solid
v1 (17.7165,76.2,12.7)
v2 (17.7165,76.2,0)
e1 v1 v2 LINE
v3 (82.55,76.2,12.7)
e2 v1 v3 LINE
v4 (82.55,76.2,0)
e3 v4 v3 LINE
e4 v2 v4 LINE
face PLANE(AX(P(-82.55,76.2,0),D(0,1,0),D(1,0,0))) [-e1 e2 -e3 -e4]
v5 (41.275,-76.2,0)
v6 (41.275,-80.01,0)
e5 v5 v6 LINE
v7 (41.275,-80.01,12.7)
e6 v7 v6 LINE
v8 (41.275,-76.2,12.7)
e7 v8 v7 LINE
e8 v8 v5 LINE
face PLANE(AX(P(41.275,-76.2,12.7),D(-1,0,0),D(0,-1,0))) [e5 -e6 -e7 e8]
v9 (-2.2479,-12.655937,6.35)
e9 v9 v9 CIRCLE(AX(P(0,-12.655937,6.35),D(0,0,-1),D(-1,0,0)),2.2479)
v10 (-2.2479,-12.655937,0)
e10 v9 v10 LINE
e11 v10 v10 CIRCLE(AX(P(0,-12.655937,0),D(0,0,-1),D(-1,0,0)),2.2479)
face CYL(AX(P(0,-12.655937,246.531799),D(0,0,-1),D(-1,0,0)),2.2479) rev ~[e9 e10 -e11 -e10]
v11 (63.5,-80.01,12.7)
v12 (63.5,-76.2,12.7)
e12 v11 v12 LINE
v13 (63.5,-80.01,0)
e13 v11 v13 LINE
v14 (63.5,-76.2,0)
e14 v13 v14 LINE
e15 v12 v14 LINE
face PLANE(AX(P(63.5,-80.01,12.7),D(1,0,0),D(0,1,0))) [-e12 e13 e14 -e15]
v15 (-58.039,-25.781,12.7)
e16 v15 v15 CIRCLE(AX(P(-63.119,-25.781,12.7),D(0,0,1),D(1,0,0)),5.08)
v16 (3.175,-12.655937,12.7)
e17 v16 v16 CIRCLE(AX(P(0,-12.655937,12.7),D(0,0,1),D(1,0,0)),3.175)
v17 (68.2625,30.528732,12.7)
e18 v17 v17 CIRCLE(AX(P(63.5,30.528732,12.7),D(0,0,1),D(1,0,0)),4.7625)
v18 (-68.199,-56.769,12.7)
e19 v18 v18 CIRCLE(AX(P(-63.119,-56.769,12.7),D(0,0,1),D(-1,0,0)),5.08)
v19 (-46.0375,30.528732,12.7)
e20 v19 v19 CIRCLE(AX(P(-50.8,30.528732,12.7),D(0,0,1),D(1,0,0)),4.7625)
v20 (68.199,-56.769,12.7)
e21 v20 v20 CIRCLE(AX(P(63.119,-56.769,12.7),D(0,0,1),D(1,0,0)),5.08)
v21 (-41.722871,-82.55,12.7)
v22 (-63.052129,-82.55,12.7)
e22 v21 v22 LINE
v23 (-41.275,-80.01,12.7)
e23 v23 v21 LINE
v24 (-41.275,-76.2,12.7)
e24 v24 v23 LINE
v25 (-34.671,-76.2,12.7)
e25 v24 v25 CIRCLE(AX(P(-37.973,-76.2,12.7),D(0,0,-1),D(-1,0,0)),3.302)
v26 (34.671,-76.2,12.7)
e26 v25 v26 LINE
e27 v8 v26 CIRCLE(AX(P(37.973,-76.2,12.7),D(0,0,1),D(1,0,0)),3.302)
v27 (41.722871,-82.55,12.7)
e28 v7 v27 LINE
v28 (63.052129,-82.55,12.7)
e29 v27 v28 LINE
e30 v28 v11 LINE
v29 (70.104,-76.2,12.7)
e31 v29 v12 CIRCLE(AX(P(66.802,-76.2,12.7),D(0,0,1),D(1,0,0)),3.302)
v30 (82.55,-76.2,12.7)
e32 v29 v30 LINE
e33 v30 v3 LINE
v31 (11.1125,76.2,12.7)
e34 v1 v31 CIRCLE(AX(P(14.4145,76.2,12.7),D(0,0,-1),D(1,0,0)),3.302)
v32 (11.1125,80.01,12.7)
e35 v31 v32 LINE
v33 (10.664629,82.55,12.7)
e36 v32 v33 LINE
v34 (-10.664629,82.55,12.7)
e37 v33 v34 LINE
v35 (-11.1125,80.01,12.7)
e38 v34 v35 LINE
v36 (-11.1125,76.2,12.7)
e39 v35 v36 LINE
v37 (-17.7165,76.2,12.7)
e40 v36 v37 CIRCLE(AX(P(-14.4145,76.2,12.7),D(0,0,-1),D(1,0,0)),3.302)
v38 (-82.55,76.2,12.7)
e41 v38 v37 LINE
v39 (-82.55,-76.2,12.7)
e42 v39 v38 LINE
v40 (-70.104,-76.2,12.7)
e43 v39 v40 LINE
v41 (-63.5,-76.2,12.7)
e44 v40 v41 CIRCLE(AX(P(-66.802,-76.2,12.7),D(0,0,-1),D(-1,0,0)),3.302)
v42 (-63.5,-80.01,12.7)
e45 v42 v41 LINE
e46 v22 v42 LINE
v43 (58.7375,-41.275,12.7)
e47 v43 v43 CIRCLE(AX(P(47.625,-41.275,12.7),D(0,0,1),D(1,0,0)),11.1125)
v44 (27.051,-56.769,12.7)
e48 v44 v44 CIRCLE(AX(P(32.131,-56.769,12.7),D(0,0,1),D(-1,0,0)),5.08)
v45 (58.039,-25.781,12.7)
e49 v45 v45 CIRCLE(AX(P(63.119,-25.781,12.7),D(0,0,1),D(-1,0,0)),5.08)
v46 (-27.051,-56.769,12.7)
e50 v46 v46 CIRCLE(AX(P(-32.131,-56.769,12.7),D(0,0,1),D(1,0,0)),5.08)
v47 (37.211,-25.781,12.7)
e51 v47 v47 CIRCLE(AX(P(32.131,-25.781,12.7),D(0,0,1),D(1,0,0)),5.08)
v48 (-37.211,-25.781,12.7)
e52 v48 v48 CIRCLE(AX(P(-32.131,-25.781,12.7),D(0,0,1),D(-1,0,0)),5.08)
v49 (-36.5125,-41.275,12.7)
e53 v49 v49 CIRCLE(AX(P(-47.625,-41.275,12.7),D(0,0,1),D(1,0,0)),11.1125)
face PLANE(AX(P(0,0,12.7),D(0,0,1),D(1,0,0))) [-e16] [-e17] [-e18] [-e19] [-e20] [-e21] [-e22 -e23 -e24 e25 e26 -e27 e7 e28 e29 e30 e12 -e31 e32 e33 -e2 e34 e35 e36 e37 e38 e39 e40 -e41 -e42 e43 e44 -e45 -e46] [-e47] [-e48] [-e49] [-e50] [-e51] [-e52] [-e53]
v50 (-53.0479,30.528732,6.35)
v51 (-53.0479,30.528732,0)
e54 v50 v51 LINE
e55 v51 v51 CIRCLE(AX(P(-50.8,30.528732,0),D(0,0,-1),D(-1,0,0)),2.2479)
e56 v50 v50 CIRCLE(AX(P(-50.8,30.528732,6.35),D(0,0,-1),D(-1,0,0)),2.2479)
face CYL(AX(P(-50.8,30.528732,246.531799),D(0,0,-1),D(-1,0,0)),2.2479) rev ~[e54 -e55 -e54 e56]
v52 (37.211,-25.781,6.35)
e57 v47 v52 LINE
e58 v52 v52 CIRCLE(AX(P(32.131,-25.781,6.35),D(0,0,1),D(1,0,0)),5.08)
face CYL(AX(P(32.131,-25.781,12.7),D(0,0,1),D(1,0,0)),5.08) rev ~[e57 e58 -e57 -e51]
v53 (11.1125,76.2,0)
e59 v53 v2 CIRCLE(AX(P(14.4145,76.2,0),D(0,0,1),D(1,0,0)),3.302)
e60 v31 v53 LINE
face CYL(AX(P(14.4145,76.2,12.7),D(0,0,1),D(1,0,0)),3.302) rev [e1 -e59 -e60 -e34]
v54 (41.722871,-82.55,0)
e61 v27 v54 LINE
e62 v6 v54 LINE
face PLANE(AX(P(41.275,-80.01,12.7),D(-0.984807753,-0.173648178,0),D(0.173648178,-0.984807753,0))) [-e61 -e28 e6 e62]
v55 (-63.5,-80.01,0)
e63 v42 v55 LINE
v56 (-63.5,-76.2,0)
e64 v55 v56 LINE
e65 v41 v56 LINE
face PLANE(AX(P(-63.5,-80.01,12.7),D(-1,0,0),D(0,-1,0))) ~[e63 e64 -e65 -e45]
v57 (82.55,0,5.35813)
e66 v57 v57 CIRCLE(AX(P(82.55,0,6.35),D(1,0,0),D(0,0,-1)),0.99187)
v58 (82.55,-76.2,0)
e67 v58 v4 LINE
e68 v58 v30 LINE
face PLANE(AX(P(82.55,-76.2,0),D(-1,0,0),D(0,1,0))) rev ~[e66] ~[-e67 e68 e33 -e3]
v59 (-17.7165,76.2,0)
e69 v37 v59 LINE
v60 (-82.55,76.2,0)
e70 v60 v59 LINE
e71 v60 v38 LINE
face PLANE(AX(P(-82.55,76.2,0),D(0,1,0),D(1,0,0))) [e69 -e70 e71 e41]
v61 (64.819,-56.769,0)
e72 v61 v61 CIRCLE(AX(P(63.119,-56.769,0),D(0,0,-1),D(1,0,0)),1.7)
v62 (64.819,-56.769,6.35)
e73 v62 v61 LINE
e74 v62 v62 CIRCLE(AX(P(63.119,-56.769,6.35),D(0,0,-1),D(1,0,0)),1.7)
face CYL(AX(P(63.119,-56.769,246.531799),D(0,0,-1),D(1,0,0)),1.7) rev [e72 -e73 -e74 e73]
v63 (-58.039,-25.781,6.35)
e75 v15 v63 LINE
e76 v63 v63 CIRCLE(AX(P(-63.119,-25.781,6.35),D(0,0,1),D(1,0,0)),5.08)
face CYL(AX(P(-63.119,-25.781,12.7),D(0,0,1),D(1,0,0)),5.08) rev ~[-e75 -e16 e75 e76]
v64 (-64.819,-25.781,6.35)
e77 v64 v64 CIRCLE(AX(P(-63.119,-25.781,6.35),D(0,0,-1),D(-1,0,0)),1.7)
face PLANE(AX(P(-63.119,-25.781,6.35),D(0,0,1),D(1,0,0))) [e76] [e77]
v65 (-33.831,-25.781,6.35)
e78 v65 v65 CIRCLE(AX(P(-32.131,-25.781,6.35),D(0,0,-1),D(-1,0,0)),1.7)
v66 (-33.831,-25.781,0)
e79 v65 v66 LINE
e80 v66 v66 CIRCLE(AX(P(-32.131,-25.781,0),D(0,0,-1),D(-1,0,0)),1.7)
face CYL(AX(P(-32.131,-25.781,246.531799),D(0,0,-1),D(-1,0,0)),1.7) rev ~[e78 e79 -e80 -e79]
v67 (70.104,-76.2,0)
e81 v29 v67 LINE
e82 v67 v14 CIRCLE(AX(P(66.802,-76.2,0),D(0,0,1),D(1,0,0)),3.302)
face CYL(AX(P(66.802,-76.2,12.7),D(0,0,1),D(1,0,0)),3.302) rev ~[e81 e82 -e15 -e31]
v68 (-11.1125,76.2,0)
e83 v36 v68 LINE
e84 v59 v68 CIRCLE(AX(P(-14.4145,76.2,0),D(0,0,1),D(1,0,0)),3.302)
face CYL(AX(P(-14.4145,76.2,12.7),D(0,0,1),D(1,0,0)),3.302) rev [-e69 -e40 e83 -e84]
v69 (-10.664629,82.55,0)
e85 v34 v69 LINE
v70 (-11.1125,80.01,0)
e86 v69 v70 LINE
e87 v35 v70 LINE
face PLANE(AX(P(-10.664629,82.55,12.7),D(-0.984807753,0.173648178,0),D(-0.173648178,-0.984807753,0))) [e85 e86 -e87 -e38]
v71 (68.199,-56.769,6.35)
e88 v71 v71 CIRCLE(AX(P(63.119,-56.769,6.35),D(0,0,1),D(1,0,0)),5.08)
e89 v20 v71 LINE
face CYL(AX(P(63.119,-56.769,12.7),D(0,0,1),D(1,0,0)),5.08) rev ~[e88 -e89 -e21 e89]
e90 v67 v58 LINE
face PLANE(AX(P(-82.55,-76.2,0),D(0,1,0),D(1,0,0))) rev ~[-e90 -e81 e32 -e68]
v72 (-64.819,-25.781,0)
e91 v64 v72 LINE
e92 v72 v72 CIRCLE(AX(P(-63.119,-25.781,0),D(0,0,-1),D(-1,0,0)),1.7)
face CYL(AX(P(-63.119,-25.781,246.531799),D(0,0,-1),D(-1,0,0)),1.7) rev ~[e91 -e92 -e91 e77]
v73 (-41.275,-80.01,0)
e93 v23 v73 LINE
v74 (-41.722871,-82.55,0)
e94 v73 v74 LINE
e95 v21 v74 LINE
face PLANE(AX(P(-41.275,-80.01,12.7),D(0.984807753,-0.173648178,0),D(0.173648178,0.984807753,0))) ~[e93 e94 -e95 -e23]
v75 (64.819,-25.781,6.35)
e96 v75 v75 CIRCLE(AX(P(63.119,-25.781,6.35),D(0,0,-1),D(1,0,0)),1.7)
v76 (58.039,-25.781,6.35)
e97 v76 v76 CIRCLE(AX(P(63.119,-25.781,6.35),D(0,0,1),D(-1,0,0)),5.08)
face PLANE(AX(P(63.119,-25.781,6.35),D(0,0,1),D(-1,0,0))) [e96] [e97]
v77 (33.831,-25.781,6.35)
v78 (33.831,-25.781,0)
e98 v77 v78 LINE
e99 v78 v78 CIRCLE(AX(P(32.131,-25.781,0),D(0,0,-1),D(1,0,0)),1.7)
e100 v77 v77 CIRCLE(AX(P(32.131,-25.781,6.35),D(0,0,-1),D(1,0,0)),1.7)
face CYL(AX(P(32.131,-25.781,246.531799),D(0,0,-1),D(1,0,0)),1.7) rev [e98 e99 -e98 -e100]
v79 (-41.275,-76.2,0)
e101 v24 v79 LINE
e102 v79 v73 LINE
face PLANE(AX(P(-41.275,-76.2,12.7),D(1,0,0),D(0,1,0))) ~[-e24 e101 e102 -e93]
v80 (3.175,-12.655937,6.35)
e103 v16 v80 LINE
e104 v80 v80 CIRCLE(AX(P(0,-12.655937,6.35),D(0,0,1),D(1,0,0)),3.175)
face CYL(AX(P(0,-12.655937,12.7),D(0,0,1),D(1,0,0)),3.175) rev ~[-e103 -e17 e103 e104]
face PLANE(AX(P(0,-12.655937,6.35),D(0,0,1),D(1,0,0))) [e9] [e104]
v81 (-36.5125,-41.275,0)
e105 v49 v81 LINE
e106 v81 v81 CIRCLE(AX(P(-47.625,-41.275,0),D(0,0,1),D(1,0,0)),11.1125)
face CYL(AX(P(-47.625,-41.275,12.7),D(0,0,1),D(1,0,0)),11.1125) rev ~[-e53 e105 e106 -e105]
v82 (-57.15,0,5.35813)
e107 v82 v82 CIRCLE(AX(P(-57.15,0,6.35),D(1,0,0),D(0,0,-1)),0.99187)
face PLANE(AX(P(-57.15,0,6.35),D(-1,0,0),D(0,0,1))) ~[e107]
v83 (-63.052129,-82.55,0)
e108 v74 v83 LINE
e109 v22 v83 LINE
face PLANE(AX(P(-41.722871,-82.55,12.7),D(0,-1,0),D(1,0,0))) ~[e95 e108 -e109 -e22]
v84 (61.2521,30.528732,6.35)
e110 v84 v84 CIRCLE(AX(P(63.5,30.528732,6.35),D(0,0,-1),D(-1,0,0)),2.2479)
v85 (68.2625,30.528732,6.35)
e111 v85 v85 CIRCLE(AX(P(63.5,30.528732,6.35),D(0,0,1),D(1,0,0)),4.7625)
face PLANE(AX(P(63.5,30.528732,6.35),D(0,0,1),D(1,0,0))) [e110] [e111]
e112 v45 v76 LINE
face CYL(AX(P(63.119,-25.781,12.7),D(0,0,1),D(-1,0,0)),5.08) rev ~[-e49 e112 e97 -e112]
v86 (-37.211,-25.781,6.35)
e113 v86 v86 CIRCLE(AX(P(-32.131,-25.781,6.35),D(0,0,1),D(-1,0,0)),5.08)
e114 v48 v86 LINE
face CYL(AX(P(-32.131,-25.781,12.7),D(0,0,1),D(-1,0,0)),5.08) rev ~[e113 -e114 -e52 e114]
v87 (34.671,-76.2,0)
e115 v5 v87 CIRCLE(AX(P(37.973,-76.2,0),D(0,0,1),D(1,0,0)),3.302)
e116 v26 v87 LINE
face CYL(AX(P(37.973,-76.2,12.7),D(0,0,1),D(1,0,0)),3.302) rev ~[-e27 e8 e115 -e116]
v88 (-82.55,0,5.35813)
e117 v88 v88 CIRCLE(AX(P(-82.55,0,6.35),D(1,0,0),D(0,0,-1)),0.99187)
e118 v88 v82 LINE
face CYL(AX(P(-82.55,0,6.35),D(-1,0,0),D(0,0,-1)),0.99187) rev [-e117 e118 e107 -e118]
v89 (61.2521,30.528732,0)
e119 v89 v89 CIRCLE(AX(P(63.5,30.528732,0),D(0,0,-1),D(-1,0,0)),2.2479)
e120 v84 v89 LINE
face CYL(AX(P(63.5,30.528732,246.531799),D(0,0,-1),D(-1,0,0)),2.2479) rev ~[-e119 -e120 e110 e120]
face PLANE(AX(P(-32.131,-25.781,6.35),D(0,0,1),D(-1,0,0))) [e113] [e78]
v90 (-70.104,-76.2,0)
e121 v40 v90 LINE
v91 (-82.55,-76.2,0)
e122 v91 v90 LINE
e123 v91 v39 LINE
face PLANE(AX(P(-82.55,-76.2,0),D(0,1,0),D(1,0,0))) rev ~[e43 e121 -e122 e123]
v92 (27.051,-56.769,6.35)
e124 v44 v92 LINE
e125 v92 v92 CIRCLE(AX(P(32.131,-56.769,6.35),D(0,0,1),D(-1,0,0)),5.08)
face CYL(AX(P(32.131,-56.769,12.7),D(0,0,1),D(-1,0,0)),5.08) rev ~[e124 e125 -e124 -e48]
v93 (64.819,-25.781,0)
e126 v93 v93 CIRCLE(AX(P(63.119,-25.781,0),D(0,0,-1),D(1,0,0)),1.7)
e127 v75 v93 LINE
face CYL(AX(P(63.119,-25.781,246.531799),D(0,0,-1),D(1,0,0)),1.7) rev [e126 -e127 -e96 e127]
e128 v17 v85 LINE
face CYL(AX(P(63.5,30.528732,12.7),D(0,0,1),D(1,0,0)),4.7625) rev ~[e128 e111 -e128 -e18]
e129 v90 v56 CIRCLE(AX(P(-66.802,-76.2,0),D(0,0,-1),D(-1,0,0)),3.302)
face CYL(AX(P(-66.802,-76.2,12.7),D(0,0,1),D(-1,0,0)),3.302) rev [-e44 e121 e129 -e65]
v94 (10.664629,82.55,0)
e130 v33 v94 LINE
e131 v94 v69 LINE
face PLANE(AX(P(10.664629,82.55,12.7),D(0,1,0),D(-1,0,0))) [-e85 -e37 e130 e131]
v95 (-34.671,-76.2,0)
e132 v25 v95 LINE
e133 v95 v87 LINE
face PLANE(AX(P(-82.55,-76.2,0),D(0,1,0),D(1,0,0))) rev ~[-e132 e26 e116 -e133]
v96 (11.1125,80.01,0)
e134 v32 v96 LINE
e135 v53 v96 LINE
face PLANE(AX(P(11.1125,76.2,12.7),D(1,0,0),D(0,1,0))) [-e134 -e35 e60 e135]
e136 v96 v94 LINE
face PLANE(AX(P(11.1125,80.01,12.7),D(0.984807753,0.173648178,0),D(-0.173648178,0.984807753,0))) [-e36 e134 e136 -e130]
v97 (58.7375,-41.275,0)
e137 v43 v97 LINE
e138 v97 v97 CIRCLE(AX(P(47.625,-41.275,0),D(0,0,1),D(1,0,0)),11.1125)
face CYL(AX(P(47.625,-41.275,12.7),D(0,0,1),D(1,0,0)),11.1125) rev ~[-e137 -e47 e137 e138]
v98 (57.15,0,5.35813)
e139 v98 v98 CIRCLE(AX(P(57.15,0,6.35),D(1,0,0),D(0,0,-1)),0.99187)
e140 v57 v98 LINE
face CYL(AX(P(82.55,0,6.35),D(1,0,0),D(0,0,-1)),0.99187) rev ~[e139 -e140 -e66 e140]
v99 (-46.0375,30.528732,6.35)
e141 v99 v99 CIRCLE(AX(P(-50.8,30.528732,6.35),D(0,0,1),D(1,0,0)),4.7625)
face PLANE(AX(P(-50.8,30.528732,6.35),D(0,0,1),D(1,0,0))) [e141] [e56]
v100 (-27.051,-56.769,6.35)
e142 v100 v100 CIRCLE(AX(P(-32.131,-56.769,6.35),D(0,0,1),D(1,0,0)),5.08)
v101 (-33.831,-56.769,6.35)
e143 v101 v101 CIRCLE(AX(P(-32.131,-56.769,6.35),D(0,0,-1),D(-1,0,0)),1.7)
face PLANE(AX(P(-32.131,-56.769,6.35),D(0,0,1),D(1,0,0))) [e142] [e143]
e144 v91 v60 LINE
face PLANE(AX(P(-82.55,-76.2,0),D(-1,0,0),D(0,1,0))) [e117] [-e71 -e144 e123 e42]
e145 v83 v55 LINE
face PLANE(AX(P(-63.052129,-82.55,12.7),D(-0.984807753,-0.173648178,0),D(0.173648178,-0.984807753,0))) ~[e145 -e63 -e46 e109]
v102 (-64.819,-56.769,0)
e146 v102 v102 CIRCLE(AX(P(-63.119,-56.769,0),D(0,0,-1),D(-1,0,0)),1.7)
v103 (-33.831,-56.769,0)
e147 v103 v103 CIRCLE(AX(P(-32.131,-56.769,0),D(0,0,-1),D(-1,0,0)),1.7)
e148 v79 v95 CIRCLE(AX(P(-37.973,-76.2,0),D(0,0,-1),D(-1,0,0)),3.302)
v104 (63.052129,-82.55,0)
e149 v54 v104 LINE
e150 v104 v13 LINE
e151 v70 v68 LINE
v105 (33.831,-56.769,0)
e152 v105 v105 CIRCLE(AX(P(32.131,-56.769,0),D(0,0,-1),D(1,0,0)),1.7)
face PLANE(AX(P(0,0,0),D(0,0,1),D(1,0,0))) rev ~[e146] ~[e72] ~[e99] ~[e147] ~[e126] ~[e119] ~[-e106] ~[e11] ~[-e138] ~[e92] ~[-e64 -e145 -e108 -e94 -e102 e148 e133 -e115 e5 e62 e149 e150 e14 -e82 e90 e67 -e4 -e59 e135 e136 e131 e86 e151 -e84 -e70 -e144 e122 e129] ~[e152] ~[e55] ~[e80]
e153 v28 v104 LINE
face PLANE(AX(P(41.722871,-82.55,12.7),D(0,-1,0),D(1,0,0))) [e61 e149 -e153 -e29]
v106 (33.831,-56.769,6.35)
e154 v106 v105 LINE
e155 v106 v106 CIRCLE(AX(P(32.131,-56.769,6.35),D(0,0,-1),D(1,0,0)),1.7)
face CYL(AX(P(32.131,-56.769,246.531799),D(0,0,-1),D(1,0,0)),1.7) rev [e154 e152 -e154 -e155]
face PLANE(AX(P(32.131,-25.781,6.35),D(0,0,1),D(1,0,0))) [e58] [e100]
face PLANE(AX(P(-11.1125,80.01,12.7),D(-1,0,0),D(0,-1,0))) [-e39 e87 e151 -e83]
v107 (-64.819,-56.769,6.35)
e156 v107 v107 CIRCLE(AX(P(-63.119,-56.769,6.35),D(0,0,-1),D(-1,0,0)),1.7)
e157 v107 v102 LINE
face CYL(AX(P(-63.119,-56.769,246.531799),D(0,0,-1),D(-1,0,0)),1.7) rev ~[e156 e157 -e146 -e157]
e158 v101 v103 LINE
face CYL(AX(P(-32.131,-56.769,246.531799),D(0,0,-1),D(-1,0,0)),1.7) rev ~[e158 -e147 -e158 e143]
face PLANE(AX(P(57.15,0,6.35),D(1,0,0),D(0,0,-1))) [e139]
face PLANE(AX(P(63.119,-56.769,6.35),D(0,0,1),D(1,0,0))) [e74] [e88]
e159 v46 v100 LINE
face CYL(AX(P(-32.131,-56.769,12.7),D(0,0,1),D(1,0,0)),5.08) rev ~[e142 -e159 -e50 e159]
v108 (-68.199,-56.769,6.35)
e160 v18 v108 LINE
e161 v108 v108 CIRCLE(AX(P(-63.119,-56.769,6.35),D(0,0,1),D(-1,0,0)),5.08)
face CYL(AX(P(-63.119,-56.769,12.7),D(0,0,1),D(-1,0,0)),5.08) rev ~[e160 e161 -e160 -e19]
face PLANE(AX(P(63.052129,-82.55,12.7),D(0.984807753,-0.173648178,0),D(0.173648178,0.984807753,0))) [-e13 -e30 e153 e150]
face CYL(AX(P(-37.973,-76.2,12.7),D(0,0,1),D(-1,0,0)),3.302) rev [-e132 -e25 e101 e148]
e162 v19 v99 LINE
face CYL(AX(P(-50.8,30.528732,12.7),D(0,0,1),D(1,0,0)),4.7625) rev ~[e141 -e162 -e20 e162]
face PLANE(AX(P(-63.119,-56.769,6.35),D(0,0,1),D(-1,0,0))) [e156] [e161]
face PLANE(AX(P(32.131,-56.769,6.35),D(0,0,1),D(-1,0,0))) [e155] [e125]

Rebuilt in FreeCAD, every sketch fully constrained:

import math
import FreeCAD as App
import Part
import Sketcher
Q = App.Units.Quantity

doc = App.newDocument("Part")
params = doc.addObject("Spreadsheet::Sheet", "Params")
for row, (alias, value) in enumerate([
    ("sketch1_height", "6 in"),
    ("sketch1_width", "6.5 in"),
    ("pad1_length", "0.5 in"),
    ("sketch2_height", "0.15 in"),
    ("sketch2_width", "0.875 in"),
    ("pad2_length", "0.5 in"),
    ("sketch3_radius", "0.13 in"),
    ("sketch4_radius", "0.13 in"),
    ("sketch5_height", "0.15 in"),
    ("sketch5_width", "0.875 in"),
    ("pad3_length", "0.5 in"),
    ("sketch6_radius", "0.13 in"),
    ("pocket3_length", "0.5 in"),
    ("sketch7_diameter", "0.875 in"),
    ("pocket4_length", "0.5 in"),
    ("hole_diameter", "3.4 mm"),
    ("sketch9_diameter", "0.375 in"),
    ("pocket5_length", "0.25 in"),
    ("sketch10_diameter", "0.25 in"),
    ("pocket6_length", "0.25 in"),
    ("sketch11_diameter", "0.177 in"),
    ("hole2_diameter", "0.177 in"),
    ("sketch12_diameter", "0.4 in"),
    ("pocket7_length", "0.25 in"),
    ("pocket8_length", "1 in"),
], start=1):
    params.set(f"A{row}", alias)
    params.set(f"B{row}", "=" + value)
    params.setAlias(f"B{row}", alias)

body = doc.addObject("PartDesign::Body", "Body")

# Sketch on XY plane
sketch1 = doc.addObject("Sketcher::SketchObject", "Sketch")
body.addObject(sketch1)
sketch1.AttachmentSupport = (doc.XY_Plane, [""])
sketch1.MapMode = "FlatFace"
sketch1.addGeometry(Part.LineSegment(App.Vector(-83, 76, 0), App.Vector(-83, -76, 0)), False)
sketch1.addGeometry(Part.LineSegment(App.Vector(-83, -76, 0), App.Vector(83, -76, 0)), False)
sketch1.addGeometry(Part.LineSegment(App.Vector(83, -76, 0), App.Vector(83, 76, 0)), False)
sketch1.addGeometry(Part.LineSegment(App.Vector(83, 76, 0), App.Vector(-83, 76, 0)), False)
sketch1.addConstraint(Sketcher.Constraint("Coincident", 0, 2, 1, 1))
sketch1.addConstraint(Sketcher.Constraint("Coincident", 1, 2, 2, 1))
sketch1.addConstraint(Sketcher.Constraint("Coincident", 2, 2, 3, 1))
sketch1.addConstraint(Sketcher.Constraint("Coincident", 3, 2, 0, 1))
sketch1.addConstraint(Sketcher.Constraint("Vertical", 0))
sketch1.addConstraint(Sketcher.Constraint("Horizontal", 1))
sketch1.addConstraint(Sketcher.Constraint("Vertical", 2))
sketch1.addConstraint(Sketcher.Constraint("Horizontal", 3))
sketch1.addConstraint(Sketcher.Constraint("Symmetric", 0, 2, 2, 2, -1, 1))
sketch1.addConstraint(Sketcher.Constraint("DistanceY", 0, 2, 0, 1, Q("6 in")))
sketch1.addConstraint(Sketcher.Constraint("DistanceX", 1, 1, 1, 2, Q("6.5 in")))
sketch1.setExpression("Constraints[9]", "Params.sketch1_height")
sketch1.setExpression("Constraints[10]", "Params.sketch1_width")
pad1 = doc.addObject("PartDesign::Pad", "Pad")
body.addObject(pad1)
pad1.Profile = sketch1
pad1.setExpression("Length", "Params.pad1_length")

# Sketch on XY plane
sketch2 = doc.addObject("Sketcher::SketchObject", "Sketch001")
body.addObject(sketch2)
sketch2.AttachmentSupport = (doc.XY_Plane, [""])
sketch2.MapMode = "FlatFace"
sketch2.AttachmentOffset = App.Placement(App.Vector(0, 0, 0.5 * 25.4), App.Rotation())
sketch2.addGeometry(Part.LineSegment(App.Vector(-11.1, 76.2, 0), App.Vector(11.1, 76.2, 0)), False)
sketch2.addGeometry(Part.LineSegment(App.Vector(11.1, 76.2, 0), App.Vector(11.1, 80, 0)), False)
sketch2.addGeometry(Part.LineSegment(App.Vector(11.1, 80, 0), App.Vector(10.7, 82.5, 0)), False)
sketch2.addGeometry(Part.LineSegment(App.Vector(10.7, 82.5, 0), App.Vector(-10.7, 82.5, 0)), False)
sketch2.addGeometry(Part.LineSegment(App.Vector(-10.7, 82.5, 0), App.Vector(-11.1, 80, 0)), False)
sketch2.addGeometry(Part.LineSegment(App.Vector(-11.1, 80, 0), App.Vector(-11.1, 76.2, 0)), False)
sketch2.addConstraint(Sketcher.Constraint("Coincident", 0, 2, 1, 1))
sketch2.addConstraint(Sketcher.Constraint("Coincident", 1, 2, 2, 1))
sketch2.addConstraint(Sketcher.Constraint("Coincident", 2, 2, 3, 1))
sketch2.addConstraint(Sketcher.Constraint("Coincident", 3, 2, 4, 1))
sketch2.addConstraint(Sketcher.Constraint("Coincident", 4, 2, 5, 1))
sketch2.addConstraint(Sketcher.Constraint("Coincident", 5, 2, 0, 1))
sketch2.addConstraint(Sketcher.Constraint("Horizontal", 0))
sketch2.addConstraint(Sketcher.Constraint("Vertical", 1))
sketch2.addConstraint(Sketcher.Constraint("Horizontal", 3))
sketch2.addConstraint(Sketcher.Constraint("Vertical", 5))
sketch2.addConstraint(Sketcher.Constraint("Symmetric", 1, 2, 4, 2, -2))
sketch2.addConstraint(Sketcher.Constraint("Equal", 2, 4))
sketch2.addConstraint(Sketcher.Constraint("DistanceY", -1, 1, 0, 2, Q("3 in")))
sketch2.addConstraint(Sketcher.Constraint("Angle", 2, Q("100 deg")))
sketch2.addConstraint(Sketcher.Constraint("DistanceY", 1, 1, 1, 2, Q("0.15 in")))
sketch2.addConstraint(Sketcher.Constraint("DistanceY", 1, 2, 2, 2, Q("0.1 in")))
sketch2.addConstraint(Sketcher.Constraint("DistanceX", 0, 1, 0, 2, Q("0.875 in")))
sketch2.setExpression("Constraints[14]", "Params.sketch2_height")
sketch2.setExpression("Constraints[16]", "Params.sketch2_width")
pad2 = doc.addObject("PartDesign::Pad", "Pad001")
body.addObject(pad2)
pad2.Profile = sketch2
pad2.setExpression("Length", "Params.pad2_length")
pad2.Reversed = True

# Sketch on XY plane
sketch3 = doc.addObject("Sketcher::SketchObject", "Sketch002")
body.addObject(sketch3)
sketch3.AttachmentSupport = (doc.XY_Plane, [""])
sketch3.MapMode = "FlatFace"
sketch3.AttachmentOffset = App.Placement(App.Vector(0, 0, 0.5 * 25.4), App.Rotation())
sketch3.addGeometry(Part.LineSegment(App.Vector(-11.1, 76.2, 0), App.Vector(-17.7, 76.2, 0)), False)
sketch3.addGeometry(Part.ArcOfCircle(Part.Circle(App.Vector(-14.4, 76.2, 0), App.Vector(0, 0, 1), 3.3), math.radians(180), math.radians(360)), False)
sketch3.addConstraint(Sketcher.Constraint("Coincident", 0, 1, 1, 2))
sketch3.addConstraint(Sketcher.Constraint("Coincident", 1, 1, 0, 2))
sketch3.addConstraint(Sketcher.Constraint("Horizontal", 0))
sketch3.addConstraint(Sketcher.Constraint("Horizontal", 1, 3, 0, 1))
sketch3.addConstraint(Sketcher.Constraint("Radius", 1, Q("0.13 in")))
sketch3.addConstraint(Sketcher.Constraint("DistanceY", -1, 1, 1, 3, Q("3 in")))
sketch3.addConstraint(Sketcher.Constraint("DistanceX", 0, 1, -1, 1, Q("0.4375 in")))
sketch3.setExpression("Constraints[4]", "Params.sketch3_radius")
pocket1 = doc.addObject("PartDesign::Pocket", "Pocket")
body.addObject(pocket1)
pocket1.Profile = sketch3
pocket1.Type = "UpToFirst"

# Sketch on XY plane
sketch4 = doc.addObject("Sketcher::SketchObject", "Sketch003")
body.addObject(sketch4)
sketch4.AttachmentSupport = (doc.XY_Plane, [""])
sketch4.MapMode = "FlatFace"
sketch4.AttachmentOffset = App.Placement(App.Vector(0, 0, 0.5 * 25.4), App.Rotation())
sketch4.addGeometry(Part.LineSegment(App.Vector(17.7, 76.2, 0), App.Vector(11.1, 76.2, 0)), False)
sketch4.addGeometry(Part.ArcOfCircle(Part.Circle(App.Vector(14.4, 76.2, 0), App.Vector(0, 0, 1), 3.3), math.radians(180), math.radians(360)), False)
sketch4.addConstraint(Sketcher.Constraint("Coincident", 0, 1, 1, 2))
sketch4.addConstraint(Sketcher.Constraint("Coincident", 1, 1, 0, 2))
sketch4.addConstraint(Sketcher.Constraint("Horizontal", 0))
sketch4.addConstraint(Sketcher.Constraint("Horizontal", 1, 3, 0, 1))
sketch4.addConstraint(Sketcher.Constraint("Radius", 1, Q("0.13 in")))
sketch4.addConstraint(Sketcher.Constraint("DistanceY", -1, 1, 1, 3, Q("3 in")))
sketch4.addConstraint(Sketcher.Constraint("DistanceX", -1, 1, 1, 1, Q("0.4375 in")))
sketch4.setExpression("Constraints[4]", "Params.sketch4_radius")
pocket2 = doc.addObject("PartDesign::Pocket", "Pocket001")
body.addObject(pocket2)
pocket2.Profile = sketch4
pocket2.Type = "UpToFirst"

# Sketch on XY plane
sketch5 = doc.addObject("Sketcher::SketchObject", "Sketch004")
body.addObject(sketch5)
sketch5.AttachmentSupport = (doc.XY_Plane, [""])
sketch5.MapMode = "FlatFace"
sketch5.AttachmentOffset = App.Placement(App.Vector(0, 0, 0.5 * 25.4), App.Rotation())
sketch5.addGeometry(Part.LineSegment(App.Vector(63.5, -76.2, 0), App.Vector(41.3, -76.2, 0)), False)
sketch5.addGeometry(Part.LineSegment(App.Vector(41.3, -76.2, 0), App.Vector(41.3, -80, 0)), False)
sketch5.addGeometry(Part.LineSegment(App.Vector(41.3, -80, 0), App.Vector(41.7, -82.5, 0)), False)
sketch5.addGeometry(Part.LineSegment(App.Vector(41.7, -82.5, 0), App.Vector(63.1, -82.5, 0)), False)
sketch5.addGeometry(Part.LineSegment(App.Vector(63.1, -82.5, 0), App.Vector(63.5, -80, 0)), False)
sketch5.addGeometry(Part.LineSegment(App.Vector(63.5, -80, 0), App.Vector(63.5, -76.2, 0)), False)
sketch5.addConstraint(Sketcher.Constraint("Coincident", 0, 2, 1, 1))
sketch5.addConstraint(Sketcher.Constraint("Coincident", 1, 2, 2, 1))
sketch5.addConstraint(Sketcher.Constraint("Coincident", 2, 2, 3, 1))
sketch5.addConstraint(Sketcher.Constraint("Coincident", 3, 2, 4, 1))
sketch5.addConstraint(Sketcher.Constraint("Coincident", 4, 2, 5, 1))
sketch5.addConstraint(Sketcher.Constraint("Coincident", 5, 2, 0, 1))
sketch5.addConstraint(Sketcher.Constraint("Horizontal", 0))
sketch5.addConstraint(Sketcher.Constraint("Vertical", 1))
sketch5.addConstraint(Sketcher.Constraint("Horizontal", 3))
sketch5.addConstraint(Sketcher.Constraint("Vertical", 5))
sketch5.addConstraint(Sketcher.Constraint("Horizontal", 1, 2, 4, 2))
sketch5.addConstraint(Sketcher.Constraint("Equal", 2, 4))
sketch5.addConstraint(Sketcher.Constraint("DistanceY", 0, 2, -1, 1, Q("3 in")))
sketch5.addConstraint(Sketcher.Constraint("Angle", 2, Q("-80 deg")))
sketch5.addConstraint(Sketcher.Constraint("DistanceY", 1, 2, 1, 1, Q("0.15 in")))
sketch5.addConstraint(Sketcher.Constraint("DistanceX", -1, 1, 4, 2, Q("2.5 in")))
sketch5.addConstraint(Sketcher.Constraint("DistanceY", 2, 2, 1, 2, Q("0.1 in")))
sketch5.addConstraint(Sketcher.Constraint("DistanceX", 0, 2, 0, 1, Q("0.875 in")))
sketch5.setExpression("Constraints[14]", "Params.sketch5_height")
sketch5.setExpression("Constraints[17]", "Params.sketch5_width")
pad3 = doc.addObject("PartDesign::Pad", "Pad002")
body.addObject(pad3)
pad3.Profile = sketch5
pad3.setExpression("Length", "Params.pad3_length")
pad3.Reversed = True

# Sketch on XY plane
sketch6 = doc.addObject("Sketcher::SketchObject", "Sketch005")
body.addObject(sketch6)
sketch6.AttachmentSupport = (doc.XY_Plane, [""])
sketch6.MapMode = "FlatFace"
sketch6.AttachmentOffset = App.Placement(App.Vector(0, 0, 0.5 * 25.4), App.Rotation())
sketch6.addGeometry(Part.LineSegment(App.Vector(34.7, -76.2, 0), App.Vector(41.3, -76.2, 0)), False)
sketch6.addGeometry(Part.ArcOfCircle(Part.Circle(App.Vector(38, -76.2, 0), App.Vector(0, 0, 1), 3.3), math.radians(0), math.radians(180)), False)
sketch6.addGeometry(Part.LineSegment(App.Vector(63.5, -76.2, 0), App.Vector(70.1, -76.2, 0)), False)
sketch6.addGeometry(Part.ArcOfCircle(Part.Circle(App.Vector(66.8, -76.2, 0), App.Vector(0, 0, 1), 3.3), math.radians(0), math.radians(180)), False)
sketch6.addConstraint(Sketcher.Constraint("Coincident", 0, 1, 1, 2))
sketch6.addConstraint(Sketcher.Constraint("Coincident", 1, 1, 0, 2))
sketch6.addConstraint(Sketcher.Constraint("Coincident", 2, 1, 3, 2))
sketch6.addConstraint(Sketcher.Constraint("Coincident", 3, 1, 2, 2))
sketch6.addConstraint(Sketcher.Constraint("Horizontal", 0))
sketch6.addConstraint(Sketcher.Constraint("Horizontal", 2))
sketch6.addConstraint(Sketcher.Constraint("Equal", 1, 3))
sketch6.addConstraint(Sketcher.Constraint("Horizontal", 1, 3, 3, 3))
sketch6.addConstraint(Sketcher.Constraint("Horizontal", 3, 3, 0, 1))
sketch6.addConstraint(Sketcher.Constraint("Horizontal", 1, 1, 2, 1))
sketch6.addConstraint(Sketcher.Constraint("Radius", 1, Q("0.13 in")))
sketch6.addConstraint(Sketcher.Constraint("DistanceY", 1, 3, -1, 1, Q("3 in")))
sketch6.addConstraint(Sketcher.Constraint("DistanceX", -1, 1, 2, 1, Q("2.5 in")))
sketch6.addConstraint(Sketcher.Constraint("DistanceX", -1, 1, 1, 3, Q("1.495 in")))
sketch6.setExpression("Constraints[10]", "Params.sketch6_radius")
pocket3 = doc.addObject("PartDesign::Pocket", "Pocket002")
body.addObject(pocket3)
pocket3.Profile = sketch6
pocket3.setExpression("Length", "Params.pocket3_length")
doc.recompute()

mirrored = doc.addObject("PartDesign::Mirrored", "Mirrored")
body.addObject(mirrored)
mirrored.Originals = [pad3, pocket3]
mirrored.MirrorPlane = (doc.YZ_Plane, [""])
body.Tip = mirrored

# Sketch on XY plane
sketch7 = doc.addObject("Sketcher::SketchObject", "Sketch006")
body.addObject(sketch7)
sketch7.AttachmentSupport = (doc.XY_Plane, [""])
sketch7.MapMode = "FlatFace"
sketch7.AttachmentOffset = App.Placement(App.Vector(0, 0, 0.5 * 25.4), App.Rotation())
sketch7.addGeometry(Part.Circle(App.Vector(-48, -41, 0), App.Vector(0, 0, 1), 11), False)
sketch7.addGeometry(Part.Circle(App.Vector(48, -41, 0), App.Vector(0, 0, 1), 11), False)
sketch7.addConstraint(Sketcher.Constraint("Equal", 0, 1))
sketch7.addConstraint(Sketcher.Constraint("Symmetric", 0, 3, 1, 3, -2))
sketch7.addConstraint(Sketcher.Constraint("Diameter", 0, Q("0.875 in")))
sketch7.addConstraint(Sketcher.Constraint("DistanceX", 0, 3, 1, 3, Q("3.75 in")))
sketch7.addConstraint(Sketcher.Constraint("DistanceY", 0, 3, -1, 1, Q("1.625 in")))
sketch7.setExpression("Constraints[2]", "Params.sketch7_diameter")
pocket4 = doc.addObject("PartDesign::Pocket", "Pocket003")
body.addObject(pocket4)
pocket4.Profile = sketch7
pocket4.setExpression("Length", "Params.pocket4_length")

# Sketch on XY plane
sketch8 = doc.addObject("Sketcher::SketchObject", "Sketch007")
body.addObject(sketch8)
sketch8.AttachmentSupport = (doc.XY_Plane, [""])
sketch8.MapMode = "FlatFace"
sketch8.AttachmentOffset = App.Placement(App.Vector(0, 0, 0.5 * 25.4), App.Rotation())
sketch8.addGeometry(Part.Circle(App.Vector(-63.1, -25.8, 0), App.Vector(0, 0, 1), 1.7), False)
sketch8.addGeometry(Part.Circle(App.Vector(-32.1, -25.8, 0), App.Vector(0, 0, 1), 1.7), False)
sketch8.addGeometry(Part.Circle(App.Vector(-32.1, -56.8, 0), App.Vector(0, 0, 1), 1.7), False)
sketch8.addGeometry(Part.Circle(App.Vector(-63.1, -56.8, 0), App.Vector(0, 0, 1), 1.7), False)
sketch8.addConstraint(Sketcher.Constraint("Equal", 0, 1))
sketch8.addConstraint(Sketcher.Constraint("Equal", 1, 2))
sketch8.addConstraint(Sketcher.Constraint("Equal", 2, 3))
sketch8.addConstraint(Sketcher.Constraint("Horizontal", 0, 3, 1, 3))
sketch8.addConstraint(Sketcher.Constraint("Horizontal", 2, 3, 3, 3))
sketch8.addConstraint(Sketcher.Constraint("Vertical", 1, 3, 2, 3))
sketch8.addConstraint(Sketcher.Constraint("Vertical", 0, 3, 3, 3))
sketch8.addConstraint(Sketcher.Constraint("Diameter", 0, Q("3.4 mm")))
sketch8.addConstraint(Sketcher.Constraint("DistanceX", 0, 3, 1, 3, Q("1.22 in")))
sketch8.addConstraint(Sketcher.Constraint("DistanceY", 2, 3, 1, 3, Q("1.22 in")))
sketch8.addConstraint(Sketcher.Constraint("DistanceX", 0, 3, -1, 1, Q("2.485 in")))
sketch8.addConstraint(Sketcher.Constraint("DistanceY", 0, 3, -1, 1, Q("1.015 in")))
doc.recompute()
hole = doc.addObject("PartDesign::Hole", "Hole")
body.addObject(hole)
hole.Profile = sketch8
hole.ThreadType = "None"
hole.setExpression("Diameter", "Params.hole_diameter")
hole.DepthType = "ThroughAll"
doc.recompute()

mirrored2 = doc.addObject("PartDesign::Mirrored", "Mirrored001")
body.addObject(mirrored2)
mirrored2.Originals = [hole]
mirrored2.MirrorPlane = (doc.YZ_Plane, [""])
body.Tip = mirrored2

# Sketch on XY plane
sketch9 = doc.addObject("Sketcher::SketchObject", "Sketch008")
body.addObject(sketch9)
sketch9.AttachmentSupport = (doc.XY_Plane, [""])
sketch9.MapMode = "FlatFace"
sketch9.AttachmentOffset = App.Placement(App.Vector(0, 0, 0.5 * 25.4), App.Rotation())
sketch9.addGeometry(Part.Circle(App.Vector(-50.8, 30.5, 0), App.Vector(0, 0, 1), 4.8), False)
sketch9.addGeometry(Part.Circle(App.Vector(63.5, 30.5, 0), App.Vector(0, 0, 1), 4.8), False)
sketch9.addConstraint(Sketcher.Constraint("Equal", 0, 1))
sketch9.addConstraint(Sketcher.Constraint("Horizontal", 0, 3, 1, 3))
sketch9.addConstraint(Sketcher.Constraint("Diameter", 0, Q("0.375 in")))
sketch9.addConstraint(Sketcher.Constraint("DistanceX", 0, 3, -1, 1, Q("2 in")))
sketch9.addConstraint(Sketcher.Constraint("DistanceX", -1, 1, 1, 3, Q("2.5 in")))
sketch9.addConstraint(Sketcher.Constraint("DistanceY", -1, 1, 0, 3, Q("30.528732 mm")))
sketch9.setExpression("Constraints[2]", "Params.sketch9_diameter")
pocket5 = doc.addObject("PartDesign::Pocket", "Pocket004")
body.addObject(pocket5)
pocket5.Profile = sketch9
pocket5.setExpression("Length", "Params.pocket5_length")

# Sketch on XY plane
sketch10 = doc.addObject("Sketcher::SketchObject", "Sketch009")
body.addObject(sketch10)
sketch10.AttachmentSupport = (doc.XY_Plane, [""])
sketch10.MapMode = "FlatFace"
sketch10.AttachmentOffset = App.Placement(App.Vector(0, 0, 0.5 * 25.4), App.Rotation())
sketch10.addGeometry(Part.Circle(App.Vector(0, -12.7, 0), App.Vector(0, 0, 1), 3.2), False)
sketch10.addConstraint(Sketcher.Constraint("PointOnObject", 0, 3, -2))
sketch10.addConstraint(Sketcher.Constraint("Diameter", 0, Q("0.25 in")))
sketch10.addConstraint(Sketcher.Constraint("DistanceY", 0, 3, -1, 1, Q("12.655937 mm")))
sketch10.setExpression("Constraints[1]", "Params.sketch10_diameter")
pocket6 = doc.addObject("PartDesign::Pocket", "Pocket005")
body.addObject(pocket6)
pocket6.Profile = sketch10
pocket6.setExpression("Length", "Params.pocket6_length")

# Sketch on XY plane
sketch11 = doc.addObject("Sketcher::SketchObject", "Sketch010")
body.addObject(sketch11)
sketch11.AttachmentSupport = (doc.XY_Plane, [""])
sketch11.MapMode = "FlatFace"
sketch11.AttachmentOffset = App.Placement(App.Vector(0, 0, 0.5 * 25.4), App.Rotation())
sketch11.addGeometry(Part.Circle(App.Vector(0, -12.7, 0), App.Vector(0, 0, 1), 2.2), False)
sketch11.addGeometry(Part.Circle(App.Vector(63.5, 30.5, 0), App.Vector(0, 0, 1), 2.2), False)
sketch11.addGeometry(Part.Circle(App.Vector(-50.8, 30.5, 0), App.Vector(0, 0, 1), 2.2), False)
sketch11.addConstraint(Sketcher.Constraint("Equal", 0, 1))
sketch11.addConstraint(Sketcher.Constraint("Equal", 1, 2))
sketch11.addConstraint(Sketcher.Constraint("PointOnObject", 0, 3, -2))
sketch11.addConstraint(Sketcher.Constraint("Horizontal", 1, 3, 2, 3))
sketch11.addConstraint(Sketcher.Constraint("Diameter", 0, Q("0.177 in")))
sketch11.addConstraint(Sketcher.Constraint("DistanceX", 2, 3, -1, 1, Q("2 in")))
sketch11.addConstraint(Sketcher.Constraint("DistanceX", -1, 1, 1, 3, Q("2.5 in")))
sketch11.addConstraint(Sketcher.Constraint("DistanceY", 0, 3, 1, 3, Q("43.184669 mm")))
sketch11.addConstraint(Sketcher.Constraint("DistanceY", 0, 3, -1, 1, Q("12.655937 mm")))
sketch11.setExpression("Constraints[4]", "Params.sketch11_diameter")
doc.recompute()
hole2 = doc.addObject("PartDesign::Hole", "Hole001")
body.addObject(hole2)
hole2.Profile = sketch11
hole2.ThreadType = "None"
hole2.setExpression("Diameter", "Params.hole2_diameter")
hole2.DepthType = "ThroughAll"

# Sketch on XY plane
sketch12 = doc.addObject("Sketcher::SketchObject", "Sketch011")
body.addObject(sketch12)
sketch12.AttachmentSupport = (doc.XY_Plane, [""])
sketch12.MapMode = "FlatFace"
sketch12.AttachmentOffset = App.Placement(App.Vector(0, 0, 0.5 * 25.4), App.Rotation())
sketch12.addGeometry(Part.Circle(App.Vector(-63, -26, 0), App.Vector(0, 0, 1), 5), False)
sketch12.addGeometry(Part.Circle(App.Vector(-63, -57, 0), App.Vector(0, 0, 1), 5), False)
sketch12.addGeometry(Part.Circle(App.Vector(-32, -57, 0), App.Vector(0, 0, 1), 5), False)
sketch12.addGeometry(Part.Circle(App.Vector(-32, -26, 0), App.Vector(0, 0, 1), 5), False)
sketch12.addGeometry(Part.Circle(App.Vector(32, -26, 0), App.Vector(0, 0, 1), 5), False)
sketch12.addGeometry(Part.Circle(App.Vector(32, -57, 0), App.Vector(0, 0, 1), 5), False)
sketch12.addGeometry(Part.Circle(App.Vector(63, -57, 0), App.Vector(0, 0, 1), 5), False)
sketch12.addGeometry(Part.Circle(App.Vector(63, -26, 0), App.Vector(0, 0, 1), 5), False)
sketch12.addConstraint(Sketcher.Constraint("Equal", 0, 1))
sketch12.addConstraint(Sketcher.Constraint("Equal", 1, 2))
sketch12.addConstraint(Sketcher.Constraint("Equal", 2, 3))
sketch12.addConstraint(Sketcher.Constraint("Equal", 3, 4))
sketch12.addConstraint(Sketcher.Constraint("Equal", 4, 5))
sketch12.addConstraint(Sketcher.Constraint("Equal", 5, 6))
sketch12.addConstraint(Sketcher.Constraint("Equal", 6, 7))
sketch12.addConstraint(Sketcher.Constraint("Symmetric", 3, 3, 4, 3, -2))
sketch12.addConstraint(Sketcher.Constraint("Symmetric", 2, 3, 5, 3, -2))
sketch12.addConstraint(Sketcher.Constraint("Symmetric", 1, 3, 6, 3, -2))
sketch12.addConstraint(Sketcher.Constraint("Symmetric", 0, 3, 7, 3, -2))
sketch12.addConstraint(Sketcher.Constraint("Horizontal", 1, 3, 2, 3))
sketch12.addConstraint(Sketcher.Constraint("Horizontal", 0, 3, 3, 3))
sketch12.addConstraint(Sketcher.Constraint("Vertical", 0, 3, 1, 3))
sketch12.addConstraint(Sketcher.Constraint("Vertical", 2, 3, 3, 3))
sketch12.addConstraint(Sketcher.Constraint("Diameter", 0, Q("0.4 in")))
sketch12.addConstraint(Sketcher.Constraint("DistanceY", 1, 3, 0, 3, Q("1.22 in")))
sketch12.addConstraint(Sketcher.Constraint("DistanceX", 1, 3, 2, 3, Q("1.22 in")))
sketch12.addConstraint(Sketcher.Constraint("DistanceX", 3, 3, 4, 3, Q("2.53 in")))
sketch12.addConstraint(Sketcher.Constraint("DistanceY", 0, 3, -1, 1, Q("1.015 in")))
sketch12.setExpression("Constraints[15]", "Params.sketch12_diameter")
pocket7 = doc.addObject("PartDesign::Pocket", "Pocket006")
body.addObject(pocket7)
pocket7.Profile = sketch12
pocket7.setExpression("Length", "Params.pocket7_length")

# Sketch on YZ plane
sketch13 = doc.addObject("Sketcher::SketchObject", "Sketch012")
body.addObject(sketch13)
sketch13.AttachmentSupport = (doc.YZ_Plane, [""])
sketch13.MapMode = "FlatFace"
sketch13.AttachmentOffset = App.Placement(App.Vector(0, 0, 3.25 * 25.4), App.Rotation())
sketch13.addGeometry(Part.Circle(App.Vector(0, 6.3, 0), App.Vector(0, 0, 1), 1), False)
sketch13.addConstraint(Sketcher.Constraint("PointOnObject", 0, 3, -2))
sketch13.addConstraint(Sketcher.Constraint("Diameter", 0, Q("0.0781 in")))
sketch13.addConstraint(Sketcher.Constraint("DistanceY", -1, 1, 0, 3, Q("0.25 in")))
pocket8 = doc.addObject("PartDesign::Pocket", "Pocket007")
body.addObject(pocket8)
pocket8.Profile = sketch13
pocket8.setExpression("Length", "Params.pocket8_length")
doc.recompute()

mirrored3 = doc.addObject("PartDesign::Mirrored", "Mirrored002")
body.addObject(mirrored3)
mirrored3.Originals = [pocket8]
mirrored3.MirrorPlane = (doc.YZ_Plane, [""])
body.Tip = mirrored3

doc.recompute()
